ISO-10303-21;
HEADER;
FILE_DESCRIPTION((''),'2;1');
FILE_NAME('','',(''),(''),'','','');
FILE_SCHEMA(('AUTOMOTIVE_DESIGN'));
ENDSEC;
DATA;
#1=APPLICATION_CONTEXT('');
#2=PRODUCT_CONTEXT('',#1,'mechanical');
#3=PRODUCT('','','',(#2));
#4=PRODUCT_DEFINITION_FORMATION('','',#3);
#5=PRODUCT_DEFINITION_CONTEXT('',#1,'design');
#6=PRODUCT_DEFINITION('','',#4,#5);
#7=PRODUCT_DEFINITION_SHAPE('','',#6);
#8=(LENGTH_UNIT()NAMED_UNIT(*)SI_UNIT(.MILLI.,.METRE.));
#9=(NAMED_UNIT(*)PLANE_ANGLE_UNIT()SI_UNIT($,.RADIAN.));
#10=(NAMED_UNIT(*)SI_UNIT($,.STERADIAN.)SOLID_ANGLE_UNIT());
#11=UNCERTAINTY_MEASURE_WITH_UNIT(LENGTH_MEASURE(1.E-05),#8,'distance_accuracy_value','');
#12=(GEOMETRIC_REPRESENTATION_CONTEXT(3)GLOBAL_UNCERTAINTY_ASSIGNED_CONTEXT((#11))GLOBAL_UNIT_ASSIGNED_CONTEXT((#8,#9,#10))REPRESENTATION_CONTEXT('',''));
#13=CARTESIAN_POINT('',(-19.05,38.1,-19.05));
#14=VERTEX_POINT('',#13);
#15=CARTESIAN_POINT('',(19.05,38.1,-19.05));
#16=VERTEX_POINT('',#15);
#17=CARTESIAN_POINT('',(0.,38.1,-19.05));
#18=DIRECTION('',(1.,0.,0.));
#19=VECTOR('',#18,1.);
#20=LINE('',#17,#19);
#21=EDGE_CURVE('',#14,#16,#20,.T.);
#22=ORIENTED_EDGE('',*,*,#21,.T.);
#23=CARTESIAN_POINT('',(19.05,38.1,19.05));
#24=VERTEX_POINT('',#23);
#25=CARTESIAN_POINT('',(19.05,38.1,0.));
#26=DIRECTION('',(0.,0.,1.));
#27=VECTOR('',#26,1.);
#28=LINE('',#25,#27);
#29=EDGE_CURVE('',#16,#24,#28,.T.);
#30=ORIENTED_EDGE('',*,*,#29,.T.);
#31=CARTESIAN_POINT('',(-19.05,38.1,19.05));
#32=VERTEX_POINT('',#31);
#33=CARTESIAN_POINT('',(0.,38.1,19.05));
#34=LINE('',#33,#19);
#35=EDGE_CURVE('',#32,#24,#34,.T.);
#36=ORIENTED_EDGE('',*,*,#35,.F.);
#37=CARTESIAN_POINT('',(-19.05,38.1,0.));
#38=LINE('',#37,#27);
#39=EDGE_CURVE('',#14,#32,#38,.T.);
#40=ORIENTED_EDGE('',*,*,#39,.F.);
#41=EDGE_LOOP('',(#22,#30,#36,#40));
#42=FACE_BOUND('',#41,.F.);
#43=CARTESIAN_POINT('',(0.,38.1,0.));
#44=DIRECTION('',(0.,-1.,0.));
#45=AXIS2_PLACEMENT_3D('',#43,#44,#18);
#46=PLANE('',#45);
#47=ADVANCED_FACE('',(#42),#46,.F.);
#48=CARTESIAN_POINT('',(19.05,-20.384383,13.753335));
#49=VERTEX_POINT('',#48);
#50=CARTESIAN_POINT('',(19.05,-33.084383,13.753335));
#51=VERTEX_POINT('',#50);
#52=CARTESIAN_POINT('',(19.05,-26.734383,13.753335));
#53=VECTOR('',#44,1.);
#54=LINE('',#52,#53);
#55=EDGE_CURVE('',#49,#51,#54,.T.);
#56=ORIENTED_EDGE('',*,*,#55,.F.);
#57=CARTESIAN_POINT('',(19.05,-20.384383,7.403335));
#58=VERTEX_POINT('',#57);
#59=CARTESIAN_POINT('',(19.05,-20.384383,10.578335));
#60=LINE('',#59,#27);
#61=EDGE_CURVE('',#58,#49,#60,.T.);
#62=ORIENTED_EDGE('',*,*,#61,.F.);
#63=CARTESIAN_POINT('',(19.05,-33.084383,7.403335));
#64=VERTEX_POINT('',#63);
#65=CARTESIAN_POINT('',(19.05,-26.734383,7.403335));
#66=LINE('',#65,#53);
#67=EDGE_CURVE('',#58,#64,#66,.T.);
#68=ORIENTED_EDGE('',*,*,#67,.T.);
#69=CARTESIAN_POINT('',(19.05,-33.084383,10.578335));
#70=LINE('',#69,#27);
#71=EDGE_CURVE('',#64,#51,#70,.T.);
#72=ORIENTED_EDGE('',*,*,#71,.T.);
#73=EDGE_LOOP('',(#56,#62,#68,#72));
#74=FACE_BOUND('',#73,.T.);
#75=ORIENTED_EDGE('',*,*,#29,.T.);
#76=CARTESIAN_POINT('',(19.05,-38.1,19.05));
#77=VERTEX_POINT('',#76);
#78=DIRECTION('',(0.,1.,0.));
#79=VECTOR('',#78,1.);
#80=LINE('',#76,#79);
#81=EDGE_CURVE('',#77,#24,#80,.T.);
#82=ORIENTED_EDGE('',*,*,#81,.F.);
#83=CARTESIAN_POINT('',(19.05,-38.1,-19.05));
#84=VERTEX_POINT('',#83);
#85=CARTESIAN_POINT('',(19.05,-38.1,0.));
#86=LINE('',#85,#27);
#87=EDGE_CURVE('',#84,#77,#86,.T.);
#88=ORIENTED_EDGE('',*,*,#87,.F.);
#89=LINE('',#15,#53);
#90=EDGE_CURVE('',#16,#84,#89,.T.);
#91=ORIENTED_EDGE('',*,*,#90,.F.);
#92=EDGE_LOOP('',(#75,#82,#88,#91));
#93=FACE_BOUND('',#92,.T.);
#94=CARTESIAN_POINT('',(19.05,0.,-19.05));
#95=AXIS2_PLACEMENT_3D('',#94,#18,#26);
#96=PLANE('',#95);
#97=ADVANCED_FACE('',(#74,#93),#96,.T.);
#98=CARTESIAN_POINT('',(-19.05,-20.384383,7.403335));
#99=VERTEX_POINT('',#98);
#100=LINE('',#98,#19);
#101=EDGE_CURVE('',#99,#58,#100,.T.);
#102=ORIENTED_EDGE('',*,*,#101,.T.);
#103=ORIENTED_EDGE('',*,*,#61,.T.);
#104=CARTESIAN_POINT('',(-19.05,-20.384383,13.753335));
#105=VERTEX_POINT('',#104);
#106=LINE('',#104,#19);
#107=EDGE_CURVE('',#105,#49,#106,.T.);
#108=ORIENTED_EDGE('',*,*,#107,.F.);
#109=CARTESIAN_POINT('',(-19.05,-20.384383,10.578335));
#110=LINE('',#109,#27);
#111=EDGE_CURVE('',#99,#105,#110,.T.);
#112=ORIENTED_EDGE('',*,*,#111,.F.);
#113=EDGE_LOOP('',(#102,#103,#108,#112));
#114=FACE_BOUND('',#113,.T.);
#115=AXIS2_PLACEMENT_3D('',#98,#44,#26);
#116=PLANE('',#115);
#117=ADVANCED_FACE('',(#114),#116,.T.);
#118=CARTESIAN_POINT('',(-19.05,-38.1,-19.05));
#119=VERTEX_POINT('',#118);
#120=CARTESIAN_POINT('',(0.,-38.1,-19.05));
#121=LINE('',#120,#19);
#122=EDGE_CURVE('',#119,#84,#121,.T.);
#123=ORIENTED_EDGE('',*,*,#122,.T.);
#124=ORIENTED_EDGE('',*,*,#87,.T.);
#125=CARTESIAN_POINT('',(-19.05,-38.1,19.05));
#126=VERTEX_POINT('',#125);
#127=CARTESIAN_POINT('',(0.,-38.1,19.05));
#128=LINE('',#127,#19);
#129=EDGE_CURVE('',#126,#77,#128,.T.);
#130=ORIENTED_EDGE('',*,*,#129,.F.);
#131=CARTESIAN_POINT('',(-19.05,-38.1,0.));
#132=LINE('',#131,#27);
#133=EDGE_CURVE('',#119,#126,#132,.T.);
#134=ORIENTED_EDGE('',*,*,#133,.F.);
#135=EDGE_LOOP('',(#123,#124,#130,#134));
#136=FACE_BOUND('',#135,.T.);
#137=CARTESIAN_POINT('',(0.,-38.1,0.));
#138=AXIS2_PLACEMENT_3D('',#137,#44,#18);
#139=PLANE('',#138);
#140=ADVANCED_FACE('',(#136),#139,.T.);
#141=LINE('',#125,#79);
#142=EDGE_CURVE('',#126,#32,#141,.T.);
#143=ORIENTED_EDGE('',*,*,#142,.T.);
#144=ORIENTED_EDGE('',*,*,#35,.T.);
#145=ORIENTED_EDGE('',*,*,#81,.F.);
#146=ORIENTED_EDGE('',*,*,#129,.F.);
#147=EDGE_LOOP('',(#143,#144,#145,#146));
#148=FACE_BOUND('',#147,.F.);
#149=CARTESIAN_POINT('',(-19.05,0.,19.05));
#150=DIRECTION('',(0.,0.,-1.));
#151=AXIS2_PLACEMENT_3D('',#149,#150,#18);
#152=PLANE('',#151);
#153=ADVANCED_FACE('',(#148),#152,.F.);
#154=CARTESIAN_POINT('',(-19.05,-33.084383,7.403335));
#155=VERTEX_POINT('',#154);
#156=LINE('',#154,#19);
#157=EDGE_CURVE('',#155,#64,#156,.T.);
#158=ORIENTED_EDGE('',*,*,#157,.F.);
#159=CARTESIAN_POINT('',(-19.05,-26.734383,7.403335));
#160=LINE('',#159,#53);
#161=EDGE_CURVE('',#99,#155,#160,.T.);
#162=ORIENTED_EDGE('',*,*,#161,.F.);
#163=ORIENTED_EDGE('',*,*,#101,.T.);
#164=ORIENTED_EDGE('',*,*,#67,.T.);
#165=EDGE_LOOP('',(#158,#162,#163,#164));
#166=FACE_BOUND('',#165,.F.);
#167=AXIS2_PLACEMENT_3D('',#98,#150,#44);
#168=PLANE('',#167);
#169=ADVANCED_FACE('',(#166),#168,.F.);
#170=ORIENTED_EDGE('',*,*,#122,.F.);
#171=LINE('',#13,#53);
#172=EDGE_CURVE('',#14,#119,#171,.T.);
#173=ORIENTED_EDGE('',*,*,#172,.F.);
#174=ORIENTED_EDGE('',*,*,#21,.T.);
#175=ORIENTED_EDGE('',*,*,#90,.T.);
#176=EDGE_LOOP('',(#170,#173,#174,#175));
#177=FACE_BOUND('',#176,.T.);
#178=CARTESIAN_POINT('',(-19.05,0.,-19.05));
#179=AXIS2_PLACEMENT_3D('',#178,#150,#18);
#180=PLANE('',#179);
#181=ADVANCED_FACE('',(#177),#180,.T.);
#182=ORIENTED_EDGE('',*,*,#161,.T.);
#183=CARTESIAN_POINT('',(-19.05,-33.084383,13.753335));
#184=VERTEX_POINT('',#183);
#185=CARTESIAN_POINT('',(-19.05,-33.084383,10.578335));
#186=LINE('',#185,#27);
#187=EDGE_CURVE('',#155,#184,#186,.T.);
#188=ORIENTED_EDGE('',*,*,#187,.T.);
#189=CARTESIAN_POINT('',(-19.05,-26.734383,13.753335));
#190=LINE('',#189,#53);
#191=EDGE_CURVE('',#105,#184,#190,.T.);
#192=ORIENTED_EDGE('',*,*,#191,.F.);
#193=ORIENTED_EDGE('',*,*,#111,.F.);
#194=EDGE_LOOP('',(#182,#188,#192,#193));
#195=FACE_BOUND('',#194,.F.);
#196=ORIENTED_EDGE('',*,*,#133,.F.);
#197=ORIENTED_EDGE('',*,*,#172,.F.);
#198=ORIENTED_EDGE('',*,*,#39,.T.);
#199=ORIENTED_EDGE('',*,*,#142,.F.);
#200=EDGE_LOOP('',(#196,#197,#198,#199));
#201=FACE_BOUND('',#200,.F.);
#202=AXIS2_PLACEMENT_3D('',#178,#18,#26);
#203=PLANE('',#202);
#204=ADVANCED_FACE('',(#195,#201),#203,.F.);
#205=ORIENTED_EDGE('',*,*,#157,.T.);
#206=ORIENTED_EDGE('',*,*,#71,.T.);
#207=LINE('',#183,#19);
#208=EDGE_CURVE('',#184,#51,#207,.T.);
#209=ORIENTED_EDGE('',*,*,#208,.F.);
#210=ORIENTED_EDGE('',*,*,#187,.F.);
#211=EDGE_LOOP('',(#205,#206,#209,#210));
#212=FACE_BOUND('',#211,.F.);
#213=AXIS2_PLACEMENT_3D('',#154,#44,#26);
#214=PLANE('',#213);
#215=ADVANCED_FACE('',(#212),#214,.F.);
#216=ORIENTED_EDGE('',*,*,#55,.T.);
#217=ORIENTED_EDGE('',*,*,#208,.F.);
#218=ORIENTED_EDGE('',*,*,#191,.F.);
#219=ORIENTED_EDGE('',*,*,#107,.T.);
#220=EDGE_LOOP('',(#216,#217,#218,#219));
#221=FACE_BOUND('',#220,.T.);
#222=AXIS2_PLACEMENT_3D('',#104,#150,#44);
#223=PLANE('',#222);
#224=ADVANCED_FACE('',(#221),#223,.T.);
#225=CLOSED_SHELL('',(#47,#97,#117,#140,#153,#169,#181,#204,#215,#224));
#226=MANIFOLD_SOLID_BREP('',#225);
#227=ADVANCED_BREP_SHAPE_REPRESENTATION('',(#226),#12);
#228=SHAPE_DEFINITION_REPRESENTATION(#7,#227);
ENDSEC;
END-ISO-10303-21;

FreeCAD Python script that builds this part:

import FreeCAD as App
import Part
import Sketcher
Q = App.Units.Quantity


def add_polygon(sketch, points):
    """Adds a closed chain of lines whose ends are joined by coincident constraints."""
    first, n = sketch.GeometryCount, len(points)
    for a, b in zip(points, points[1:] + points[:1]):
        sketch.addGeometry(Part.LineSegment(App.Vector(*a, 0), App.Vector(*b, 0)), False)
    for i in range(n):
        sketch.addConstraint(Sketcher.Constraint("Coincident", first + i, 2, first + (i + 1) % n, 1))

doc = App.newDocument("Part")
body = doc.addObject("PartDesign::Body", "Body")

# Sketch on XZ plane
sketch1 = doc.addObject("Sketcher::SketchObject", "Sketch")
body.addObject(sketch1)
sketch1.AttachmentSupport = (doc.XZ_Plane, [""])
sketch1.MapMode = "FlatFace"
add_polygon(sketch1, [(-19.05, 19.05), (-19.05, -19.05), (19.05, -19.05), (19.05, 19.05)])  # lines 0-3
sketch1.addConstraint([
    Sketcher.Constraint("Vertical", 0),
    Sketcher.Constraint("Horizontal", 1),
    Sketcher.Constraint("Vertical", 2),
    Sketcher.Constraint("Horizontal", 3),
    Sketcher.Constraint("Symmetric", 0, 2, 2, 2, -1, 1),
    Sketcher.Constraint("Equal", 3, 0),
    Sketcher.Constraint("DistanceX", 1, 1, 1, 2, Q("1.5 in")),
])
pad1 = doc.addObject("PartDesign::Pad", "Pad")
body.addObject(pad1)
pad1.Profile = sketch1
pad1.Length = Q("3 in")
pad1.Midplane = True

# Sketch on YZ plane
sketch2 = doc.addObject("Sketcher::SketchObject", "Sketch001")
body.addObject(sketch2)
sketch2.AttachmentSupport = (doc.YZ_Plane, [""])
sketch2.MapMode = "FlatFace"
sketch2.AttachmentOffset = App.Placement(App.Vector(0, 0, -0.75 * 25.4), App.Rotation())
add_polygon(sketch2, [(-20.384383, 13.753335), (-20.384383, 7.403335), (-33.084383, 7.403335), (-33.084383, 13.753335)])  # lines 0-3
sketch2.addConstraint([
    Sketcher.Constraint("Vertical", 0),
    Sketcher.Constraint("Horizontal", 1),
    Sketcher.Constraint("Vertical", 2),
    Sketcher.Constraint("Horizontal", 3),
    Sketcher.Constraint("DistanceX", 1, 2, 1, 1, Q("0.5 in")),
    Sketcher.Constraint("DistanceY", 0, 2, 0, 1, Q("0.25 in")),
    Sketcher.Constraint("DistanceX", 0, 2, -1, 1, 20.384383),
    Sketcher.Constraint("DistanceY", -1, 1, 0, 2, 7.403335),
])
pocket1 = doc.addObject("PartDesign::Pocket", "Pocket")
body.addObject(pocket1)
pocket1.Profile = sketch2
pocket1.Length = Q("1.5 in")
pocket1.Reversed = True

doc.recompute()
